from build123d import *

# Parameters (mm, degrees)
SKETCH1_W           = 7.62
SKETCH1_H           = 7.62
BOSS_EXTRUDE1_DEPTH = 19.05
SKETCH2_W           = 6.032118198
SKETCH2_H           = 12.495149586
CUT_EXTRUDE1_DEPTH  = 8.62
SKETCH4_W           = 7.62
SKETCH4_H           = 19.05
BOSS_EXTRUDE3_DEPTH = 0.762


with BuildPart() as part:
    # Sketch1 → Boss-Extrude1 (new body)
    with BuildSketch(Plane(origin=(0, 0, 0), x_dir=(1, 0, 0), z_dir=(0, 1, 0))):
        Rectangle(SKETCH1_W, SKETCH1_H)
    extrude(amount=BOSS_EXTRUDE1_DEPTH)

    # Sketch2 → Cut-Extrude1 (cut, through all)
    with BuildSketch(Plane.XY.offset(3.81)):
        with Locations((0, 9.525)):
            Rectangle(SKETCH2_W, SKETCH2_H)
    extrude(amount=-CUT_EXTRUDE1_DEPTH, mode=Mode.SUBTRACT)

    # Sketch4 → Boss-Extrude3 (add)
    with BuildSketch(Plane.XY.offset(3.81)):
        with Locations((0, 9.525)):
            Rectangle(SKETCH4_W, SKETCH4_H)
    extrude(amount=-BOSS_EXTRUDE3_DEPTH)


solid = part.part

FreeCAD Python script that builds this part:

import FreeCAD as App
import Part
import Sketcher
Q = App.Units.Quantity

doc = App.newDocument("Part")
body = doc.addObject("PartDesign::Body", "Body")

sketch1 = body.newObject("Sketcher::SketchObject", "Sketch")
sketch1.AttachmentSupport = (doc.getObject("XZ_Plane"), [""])
sketch1.MapMode = "FlatFace"
sketch1.addGeometry([
    Part.LineSegment(App.Vector(-3.81, -3.81, 0), App.Vector(-3.81, 3.81, 0)),
    Part.LineSegment(App.Vector(-3.81, 3.81, 0), App.Vector(3.81, 3.81, 0)),
    Part.LineSegment(App.Vector(3.81, 3.81, 0), App.Vector(3.81, -3.81, 0)),
    Part.LineSegment(App.Vector(3.81, -3.81, 0), App.Vector(-3.81, -3.81, 0)),
], False)
sketch1.addConstraint([
    Sketcher.Constraint("Coincident", 0, 2, 1, 1),
    Sketcher.Constraint("Coincident", 1, 2, 2, 1),
    Sketcher.Constraint("Coincident", 2, 2, 3, 1),
    Sketcher.Constraint("Coincident", 3, 2, 0, 1),
    Sketcher.Constraint("Vertical", 0),
    Sketcher.Constraint("Horizontal", 1),
    Sketcher.Constraint("Vertical", 2),
    Sketcher.Constraint("Horizontal", 3),
    Sketcher.Constraint("Symmetric", 0, 2, 2, 2, -1, 1),
    Sketcher.Constraint("Equal", 3, 0),
    Sketcher.Constraint("DistanceX", 1, 1, 1, 2, Q("0.3 in")),
])
pad1 = body.newObject("PartDesign::Pad", "Pad")
pad1.Profile = sketch1
pad1.Length = Q("0.75 in")
pad1.Reversed = True

sketch2 = body.newObject("Sketcher::SketchObject", "Sketch001")
sketch2.AttachmentSupport = (doc.getObject("XY_Plane"), [""])
sketch2.MapMode = "FlatFace"
sketch2.AttachmentOffset = App.Placement(App.Vector(0, 0, 0.15 * 25.4), App.Rotation())
sketch2.addGeometry([
    Part.LineSegment(App.Vector(-3.016059, 15.772575, 0), App.Vector(-3.016059, 3.277425, 0)),
    Part.LineSegment(App.Vector(-3.016059, 3.277425, 0), App.Vector(3.016059, 3.277425, 0)),
    Part.LineSegment(App.Vector(3.016059, 3.277425, 0), App.Vector(3.016059, 15.772575, 0)),
    Part.LineSegment(App.Vector(3.016059, 15.772575, 0), App.Vector(-3.016059, 15.772575, 0)),
], False)
sketch2.addConstraint([
    Sketcher.Constraint("Coincident", 0, 2, 1, 1),
    Sketcher.Constraint("Coincident", 1, 2, 2, 1),
    Sketcher.Constraint("Coincident", 2, 2, 3, 1),
    Sketcher.Constraint("Coincident", 3, 2, 0, 1),
    Sketcher.Constraint("Vertical", 0),
    Sketcher.Constraint("Horizontal", 1),
    Sketcher.Constraint("Vertical", 2),
    Sketcher.Constraint("Horizontal", 3),
    Sketcher.Constraint("DistanceX", 1, 1, 1, 2, 6.032118),
    Sketcher.Constraint("DistanceY", 0, 2, 0, 1, 12.49515),
    Sketcher.Constraint("DistanceX", 0, 2, -1, 1, 3.016059),
    Sketcher.Constraint("DistanceY", -1, 1, 0, 2, 3.277425),
])
pocket1 = body.newObject("PartDesign::Pocket", "Pocket")
pocket1.Profile = sketch2
pocket1.Type = "ThroughAll"

sketch3 = body.newObject("Sketcher::SketchObject", "Sketch002")
sketch3.AttachmentSupport = (doc.getObject("XY_Plane"), [""])
sketch3.MapMode = "FlatFace"
sketch3.AttachmentOffset = App.Placement(App.Vector(0, 0, 0.15 * 25.4), App.Rotation())
sketch3.addGeometry([
    Part.LineSegment(App.Vector(-3.81, 19.05, 0), App.Vector(-3.81, 0, 0)),
    Part.LineSegment(App.Vector(-3.81, 0, 0), App.Vector(3.81, 0, 0)),
    Part.LineSegment(App.Vector(3.81, 0, 0), App.Vector(3.81, 19.05, 0)),
    Part.LineSegment(App.Vector(3.81, 19.05, 0), App.Vector(-3.81, 19.05, 0)),
], False)
sketch3.addConstraint([
    Sketcher.Constraint("Coincident", 0, 2, 1, 1),
    Sketcher.Constraint("Coincident", 1, 2, 2, 1),
    Sketcher.Constraint("Coincident", 2, 2, 3, 1),
    Sketcher.Constraint("Coincident", 3, 2, 0, 1),
    Sketcher.Constraint("Vertical", 0),
    Sketcher.Constraint("Horizontal", 1),
    Sketcher.Constraint("Vertical", 2),
    Sketcher.Constraint("Horizontal", 3),
    Sketcher.Constraint("Symmetric", 0, 2, 1, 2, -1, 1),
    Sketcher.Constraint("DistanceX", 1, 1, 1, 2, Q("0.3 in")),
    Sketcher.Constraint("DistanceY", 0, 2, 0, 1, Q("0.75 in")),
])
pad2 = body.newObject("PartDesign::Pad", "Pad001")
pad2.Profile = sketch3
pad2.Length = Q("0.03 in")
pad2.Reversed = True

doc.recompute()
